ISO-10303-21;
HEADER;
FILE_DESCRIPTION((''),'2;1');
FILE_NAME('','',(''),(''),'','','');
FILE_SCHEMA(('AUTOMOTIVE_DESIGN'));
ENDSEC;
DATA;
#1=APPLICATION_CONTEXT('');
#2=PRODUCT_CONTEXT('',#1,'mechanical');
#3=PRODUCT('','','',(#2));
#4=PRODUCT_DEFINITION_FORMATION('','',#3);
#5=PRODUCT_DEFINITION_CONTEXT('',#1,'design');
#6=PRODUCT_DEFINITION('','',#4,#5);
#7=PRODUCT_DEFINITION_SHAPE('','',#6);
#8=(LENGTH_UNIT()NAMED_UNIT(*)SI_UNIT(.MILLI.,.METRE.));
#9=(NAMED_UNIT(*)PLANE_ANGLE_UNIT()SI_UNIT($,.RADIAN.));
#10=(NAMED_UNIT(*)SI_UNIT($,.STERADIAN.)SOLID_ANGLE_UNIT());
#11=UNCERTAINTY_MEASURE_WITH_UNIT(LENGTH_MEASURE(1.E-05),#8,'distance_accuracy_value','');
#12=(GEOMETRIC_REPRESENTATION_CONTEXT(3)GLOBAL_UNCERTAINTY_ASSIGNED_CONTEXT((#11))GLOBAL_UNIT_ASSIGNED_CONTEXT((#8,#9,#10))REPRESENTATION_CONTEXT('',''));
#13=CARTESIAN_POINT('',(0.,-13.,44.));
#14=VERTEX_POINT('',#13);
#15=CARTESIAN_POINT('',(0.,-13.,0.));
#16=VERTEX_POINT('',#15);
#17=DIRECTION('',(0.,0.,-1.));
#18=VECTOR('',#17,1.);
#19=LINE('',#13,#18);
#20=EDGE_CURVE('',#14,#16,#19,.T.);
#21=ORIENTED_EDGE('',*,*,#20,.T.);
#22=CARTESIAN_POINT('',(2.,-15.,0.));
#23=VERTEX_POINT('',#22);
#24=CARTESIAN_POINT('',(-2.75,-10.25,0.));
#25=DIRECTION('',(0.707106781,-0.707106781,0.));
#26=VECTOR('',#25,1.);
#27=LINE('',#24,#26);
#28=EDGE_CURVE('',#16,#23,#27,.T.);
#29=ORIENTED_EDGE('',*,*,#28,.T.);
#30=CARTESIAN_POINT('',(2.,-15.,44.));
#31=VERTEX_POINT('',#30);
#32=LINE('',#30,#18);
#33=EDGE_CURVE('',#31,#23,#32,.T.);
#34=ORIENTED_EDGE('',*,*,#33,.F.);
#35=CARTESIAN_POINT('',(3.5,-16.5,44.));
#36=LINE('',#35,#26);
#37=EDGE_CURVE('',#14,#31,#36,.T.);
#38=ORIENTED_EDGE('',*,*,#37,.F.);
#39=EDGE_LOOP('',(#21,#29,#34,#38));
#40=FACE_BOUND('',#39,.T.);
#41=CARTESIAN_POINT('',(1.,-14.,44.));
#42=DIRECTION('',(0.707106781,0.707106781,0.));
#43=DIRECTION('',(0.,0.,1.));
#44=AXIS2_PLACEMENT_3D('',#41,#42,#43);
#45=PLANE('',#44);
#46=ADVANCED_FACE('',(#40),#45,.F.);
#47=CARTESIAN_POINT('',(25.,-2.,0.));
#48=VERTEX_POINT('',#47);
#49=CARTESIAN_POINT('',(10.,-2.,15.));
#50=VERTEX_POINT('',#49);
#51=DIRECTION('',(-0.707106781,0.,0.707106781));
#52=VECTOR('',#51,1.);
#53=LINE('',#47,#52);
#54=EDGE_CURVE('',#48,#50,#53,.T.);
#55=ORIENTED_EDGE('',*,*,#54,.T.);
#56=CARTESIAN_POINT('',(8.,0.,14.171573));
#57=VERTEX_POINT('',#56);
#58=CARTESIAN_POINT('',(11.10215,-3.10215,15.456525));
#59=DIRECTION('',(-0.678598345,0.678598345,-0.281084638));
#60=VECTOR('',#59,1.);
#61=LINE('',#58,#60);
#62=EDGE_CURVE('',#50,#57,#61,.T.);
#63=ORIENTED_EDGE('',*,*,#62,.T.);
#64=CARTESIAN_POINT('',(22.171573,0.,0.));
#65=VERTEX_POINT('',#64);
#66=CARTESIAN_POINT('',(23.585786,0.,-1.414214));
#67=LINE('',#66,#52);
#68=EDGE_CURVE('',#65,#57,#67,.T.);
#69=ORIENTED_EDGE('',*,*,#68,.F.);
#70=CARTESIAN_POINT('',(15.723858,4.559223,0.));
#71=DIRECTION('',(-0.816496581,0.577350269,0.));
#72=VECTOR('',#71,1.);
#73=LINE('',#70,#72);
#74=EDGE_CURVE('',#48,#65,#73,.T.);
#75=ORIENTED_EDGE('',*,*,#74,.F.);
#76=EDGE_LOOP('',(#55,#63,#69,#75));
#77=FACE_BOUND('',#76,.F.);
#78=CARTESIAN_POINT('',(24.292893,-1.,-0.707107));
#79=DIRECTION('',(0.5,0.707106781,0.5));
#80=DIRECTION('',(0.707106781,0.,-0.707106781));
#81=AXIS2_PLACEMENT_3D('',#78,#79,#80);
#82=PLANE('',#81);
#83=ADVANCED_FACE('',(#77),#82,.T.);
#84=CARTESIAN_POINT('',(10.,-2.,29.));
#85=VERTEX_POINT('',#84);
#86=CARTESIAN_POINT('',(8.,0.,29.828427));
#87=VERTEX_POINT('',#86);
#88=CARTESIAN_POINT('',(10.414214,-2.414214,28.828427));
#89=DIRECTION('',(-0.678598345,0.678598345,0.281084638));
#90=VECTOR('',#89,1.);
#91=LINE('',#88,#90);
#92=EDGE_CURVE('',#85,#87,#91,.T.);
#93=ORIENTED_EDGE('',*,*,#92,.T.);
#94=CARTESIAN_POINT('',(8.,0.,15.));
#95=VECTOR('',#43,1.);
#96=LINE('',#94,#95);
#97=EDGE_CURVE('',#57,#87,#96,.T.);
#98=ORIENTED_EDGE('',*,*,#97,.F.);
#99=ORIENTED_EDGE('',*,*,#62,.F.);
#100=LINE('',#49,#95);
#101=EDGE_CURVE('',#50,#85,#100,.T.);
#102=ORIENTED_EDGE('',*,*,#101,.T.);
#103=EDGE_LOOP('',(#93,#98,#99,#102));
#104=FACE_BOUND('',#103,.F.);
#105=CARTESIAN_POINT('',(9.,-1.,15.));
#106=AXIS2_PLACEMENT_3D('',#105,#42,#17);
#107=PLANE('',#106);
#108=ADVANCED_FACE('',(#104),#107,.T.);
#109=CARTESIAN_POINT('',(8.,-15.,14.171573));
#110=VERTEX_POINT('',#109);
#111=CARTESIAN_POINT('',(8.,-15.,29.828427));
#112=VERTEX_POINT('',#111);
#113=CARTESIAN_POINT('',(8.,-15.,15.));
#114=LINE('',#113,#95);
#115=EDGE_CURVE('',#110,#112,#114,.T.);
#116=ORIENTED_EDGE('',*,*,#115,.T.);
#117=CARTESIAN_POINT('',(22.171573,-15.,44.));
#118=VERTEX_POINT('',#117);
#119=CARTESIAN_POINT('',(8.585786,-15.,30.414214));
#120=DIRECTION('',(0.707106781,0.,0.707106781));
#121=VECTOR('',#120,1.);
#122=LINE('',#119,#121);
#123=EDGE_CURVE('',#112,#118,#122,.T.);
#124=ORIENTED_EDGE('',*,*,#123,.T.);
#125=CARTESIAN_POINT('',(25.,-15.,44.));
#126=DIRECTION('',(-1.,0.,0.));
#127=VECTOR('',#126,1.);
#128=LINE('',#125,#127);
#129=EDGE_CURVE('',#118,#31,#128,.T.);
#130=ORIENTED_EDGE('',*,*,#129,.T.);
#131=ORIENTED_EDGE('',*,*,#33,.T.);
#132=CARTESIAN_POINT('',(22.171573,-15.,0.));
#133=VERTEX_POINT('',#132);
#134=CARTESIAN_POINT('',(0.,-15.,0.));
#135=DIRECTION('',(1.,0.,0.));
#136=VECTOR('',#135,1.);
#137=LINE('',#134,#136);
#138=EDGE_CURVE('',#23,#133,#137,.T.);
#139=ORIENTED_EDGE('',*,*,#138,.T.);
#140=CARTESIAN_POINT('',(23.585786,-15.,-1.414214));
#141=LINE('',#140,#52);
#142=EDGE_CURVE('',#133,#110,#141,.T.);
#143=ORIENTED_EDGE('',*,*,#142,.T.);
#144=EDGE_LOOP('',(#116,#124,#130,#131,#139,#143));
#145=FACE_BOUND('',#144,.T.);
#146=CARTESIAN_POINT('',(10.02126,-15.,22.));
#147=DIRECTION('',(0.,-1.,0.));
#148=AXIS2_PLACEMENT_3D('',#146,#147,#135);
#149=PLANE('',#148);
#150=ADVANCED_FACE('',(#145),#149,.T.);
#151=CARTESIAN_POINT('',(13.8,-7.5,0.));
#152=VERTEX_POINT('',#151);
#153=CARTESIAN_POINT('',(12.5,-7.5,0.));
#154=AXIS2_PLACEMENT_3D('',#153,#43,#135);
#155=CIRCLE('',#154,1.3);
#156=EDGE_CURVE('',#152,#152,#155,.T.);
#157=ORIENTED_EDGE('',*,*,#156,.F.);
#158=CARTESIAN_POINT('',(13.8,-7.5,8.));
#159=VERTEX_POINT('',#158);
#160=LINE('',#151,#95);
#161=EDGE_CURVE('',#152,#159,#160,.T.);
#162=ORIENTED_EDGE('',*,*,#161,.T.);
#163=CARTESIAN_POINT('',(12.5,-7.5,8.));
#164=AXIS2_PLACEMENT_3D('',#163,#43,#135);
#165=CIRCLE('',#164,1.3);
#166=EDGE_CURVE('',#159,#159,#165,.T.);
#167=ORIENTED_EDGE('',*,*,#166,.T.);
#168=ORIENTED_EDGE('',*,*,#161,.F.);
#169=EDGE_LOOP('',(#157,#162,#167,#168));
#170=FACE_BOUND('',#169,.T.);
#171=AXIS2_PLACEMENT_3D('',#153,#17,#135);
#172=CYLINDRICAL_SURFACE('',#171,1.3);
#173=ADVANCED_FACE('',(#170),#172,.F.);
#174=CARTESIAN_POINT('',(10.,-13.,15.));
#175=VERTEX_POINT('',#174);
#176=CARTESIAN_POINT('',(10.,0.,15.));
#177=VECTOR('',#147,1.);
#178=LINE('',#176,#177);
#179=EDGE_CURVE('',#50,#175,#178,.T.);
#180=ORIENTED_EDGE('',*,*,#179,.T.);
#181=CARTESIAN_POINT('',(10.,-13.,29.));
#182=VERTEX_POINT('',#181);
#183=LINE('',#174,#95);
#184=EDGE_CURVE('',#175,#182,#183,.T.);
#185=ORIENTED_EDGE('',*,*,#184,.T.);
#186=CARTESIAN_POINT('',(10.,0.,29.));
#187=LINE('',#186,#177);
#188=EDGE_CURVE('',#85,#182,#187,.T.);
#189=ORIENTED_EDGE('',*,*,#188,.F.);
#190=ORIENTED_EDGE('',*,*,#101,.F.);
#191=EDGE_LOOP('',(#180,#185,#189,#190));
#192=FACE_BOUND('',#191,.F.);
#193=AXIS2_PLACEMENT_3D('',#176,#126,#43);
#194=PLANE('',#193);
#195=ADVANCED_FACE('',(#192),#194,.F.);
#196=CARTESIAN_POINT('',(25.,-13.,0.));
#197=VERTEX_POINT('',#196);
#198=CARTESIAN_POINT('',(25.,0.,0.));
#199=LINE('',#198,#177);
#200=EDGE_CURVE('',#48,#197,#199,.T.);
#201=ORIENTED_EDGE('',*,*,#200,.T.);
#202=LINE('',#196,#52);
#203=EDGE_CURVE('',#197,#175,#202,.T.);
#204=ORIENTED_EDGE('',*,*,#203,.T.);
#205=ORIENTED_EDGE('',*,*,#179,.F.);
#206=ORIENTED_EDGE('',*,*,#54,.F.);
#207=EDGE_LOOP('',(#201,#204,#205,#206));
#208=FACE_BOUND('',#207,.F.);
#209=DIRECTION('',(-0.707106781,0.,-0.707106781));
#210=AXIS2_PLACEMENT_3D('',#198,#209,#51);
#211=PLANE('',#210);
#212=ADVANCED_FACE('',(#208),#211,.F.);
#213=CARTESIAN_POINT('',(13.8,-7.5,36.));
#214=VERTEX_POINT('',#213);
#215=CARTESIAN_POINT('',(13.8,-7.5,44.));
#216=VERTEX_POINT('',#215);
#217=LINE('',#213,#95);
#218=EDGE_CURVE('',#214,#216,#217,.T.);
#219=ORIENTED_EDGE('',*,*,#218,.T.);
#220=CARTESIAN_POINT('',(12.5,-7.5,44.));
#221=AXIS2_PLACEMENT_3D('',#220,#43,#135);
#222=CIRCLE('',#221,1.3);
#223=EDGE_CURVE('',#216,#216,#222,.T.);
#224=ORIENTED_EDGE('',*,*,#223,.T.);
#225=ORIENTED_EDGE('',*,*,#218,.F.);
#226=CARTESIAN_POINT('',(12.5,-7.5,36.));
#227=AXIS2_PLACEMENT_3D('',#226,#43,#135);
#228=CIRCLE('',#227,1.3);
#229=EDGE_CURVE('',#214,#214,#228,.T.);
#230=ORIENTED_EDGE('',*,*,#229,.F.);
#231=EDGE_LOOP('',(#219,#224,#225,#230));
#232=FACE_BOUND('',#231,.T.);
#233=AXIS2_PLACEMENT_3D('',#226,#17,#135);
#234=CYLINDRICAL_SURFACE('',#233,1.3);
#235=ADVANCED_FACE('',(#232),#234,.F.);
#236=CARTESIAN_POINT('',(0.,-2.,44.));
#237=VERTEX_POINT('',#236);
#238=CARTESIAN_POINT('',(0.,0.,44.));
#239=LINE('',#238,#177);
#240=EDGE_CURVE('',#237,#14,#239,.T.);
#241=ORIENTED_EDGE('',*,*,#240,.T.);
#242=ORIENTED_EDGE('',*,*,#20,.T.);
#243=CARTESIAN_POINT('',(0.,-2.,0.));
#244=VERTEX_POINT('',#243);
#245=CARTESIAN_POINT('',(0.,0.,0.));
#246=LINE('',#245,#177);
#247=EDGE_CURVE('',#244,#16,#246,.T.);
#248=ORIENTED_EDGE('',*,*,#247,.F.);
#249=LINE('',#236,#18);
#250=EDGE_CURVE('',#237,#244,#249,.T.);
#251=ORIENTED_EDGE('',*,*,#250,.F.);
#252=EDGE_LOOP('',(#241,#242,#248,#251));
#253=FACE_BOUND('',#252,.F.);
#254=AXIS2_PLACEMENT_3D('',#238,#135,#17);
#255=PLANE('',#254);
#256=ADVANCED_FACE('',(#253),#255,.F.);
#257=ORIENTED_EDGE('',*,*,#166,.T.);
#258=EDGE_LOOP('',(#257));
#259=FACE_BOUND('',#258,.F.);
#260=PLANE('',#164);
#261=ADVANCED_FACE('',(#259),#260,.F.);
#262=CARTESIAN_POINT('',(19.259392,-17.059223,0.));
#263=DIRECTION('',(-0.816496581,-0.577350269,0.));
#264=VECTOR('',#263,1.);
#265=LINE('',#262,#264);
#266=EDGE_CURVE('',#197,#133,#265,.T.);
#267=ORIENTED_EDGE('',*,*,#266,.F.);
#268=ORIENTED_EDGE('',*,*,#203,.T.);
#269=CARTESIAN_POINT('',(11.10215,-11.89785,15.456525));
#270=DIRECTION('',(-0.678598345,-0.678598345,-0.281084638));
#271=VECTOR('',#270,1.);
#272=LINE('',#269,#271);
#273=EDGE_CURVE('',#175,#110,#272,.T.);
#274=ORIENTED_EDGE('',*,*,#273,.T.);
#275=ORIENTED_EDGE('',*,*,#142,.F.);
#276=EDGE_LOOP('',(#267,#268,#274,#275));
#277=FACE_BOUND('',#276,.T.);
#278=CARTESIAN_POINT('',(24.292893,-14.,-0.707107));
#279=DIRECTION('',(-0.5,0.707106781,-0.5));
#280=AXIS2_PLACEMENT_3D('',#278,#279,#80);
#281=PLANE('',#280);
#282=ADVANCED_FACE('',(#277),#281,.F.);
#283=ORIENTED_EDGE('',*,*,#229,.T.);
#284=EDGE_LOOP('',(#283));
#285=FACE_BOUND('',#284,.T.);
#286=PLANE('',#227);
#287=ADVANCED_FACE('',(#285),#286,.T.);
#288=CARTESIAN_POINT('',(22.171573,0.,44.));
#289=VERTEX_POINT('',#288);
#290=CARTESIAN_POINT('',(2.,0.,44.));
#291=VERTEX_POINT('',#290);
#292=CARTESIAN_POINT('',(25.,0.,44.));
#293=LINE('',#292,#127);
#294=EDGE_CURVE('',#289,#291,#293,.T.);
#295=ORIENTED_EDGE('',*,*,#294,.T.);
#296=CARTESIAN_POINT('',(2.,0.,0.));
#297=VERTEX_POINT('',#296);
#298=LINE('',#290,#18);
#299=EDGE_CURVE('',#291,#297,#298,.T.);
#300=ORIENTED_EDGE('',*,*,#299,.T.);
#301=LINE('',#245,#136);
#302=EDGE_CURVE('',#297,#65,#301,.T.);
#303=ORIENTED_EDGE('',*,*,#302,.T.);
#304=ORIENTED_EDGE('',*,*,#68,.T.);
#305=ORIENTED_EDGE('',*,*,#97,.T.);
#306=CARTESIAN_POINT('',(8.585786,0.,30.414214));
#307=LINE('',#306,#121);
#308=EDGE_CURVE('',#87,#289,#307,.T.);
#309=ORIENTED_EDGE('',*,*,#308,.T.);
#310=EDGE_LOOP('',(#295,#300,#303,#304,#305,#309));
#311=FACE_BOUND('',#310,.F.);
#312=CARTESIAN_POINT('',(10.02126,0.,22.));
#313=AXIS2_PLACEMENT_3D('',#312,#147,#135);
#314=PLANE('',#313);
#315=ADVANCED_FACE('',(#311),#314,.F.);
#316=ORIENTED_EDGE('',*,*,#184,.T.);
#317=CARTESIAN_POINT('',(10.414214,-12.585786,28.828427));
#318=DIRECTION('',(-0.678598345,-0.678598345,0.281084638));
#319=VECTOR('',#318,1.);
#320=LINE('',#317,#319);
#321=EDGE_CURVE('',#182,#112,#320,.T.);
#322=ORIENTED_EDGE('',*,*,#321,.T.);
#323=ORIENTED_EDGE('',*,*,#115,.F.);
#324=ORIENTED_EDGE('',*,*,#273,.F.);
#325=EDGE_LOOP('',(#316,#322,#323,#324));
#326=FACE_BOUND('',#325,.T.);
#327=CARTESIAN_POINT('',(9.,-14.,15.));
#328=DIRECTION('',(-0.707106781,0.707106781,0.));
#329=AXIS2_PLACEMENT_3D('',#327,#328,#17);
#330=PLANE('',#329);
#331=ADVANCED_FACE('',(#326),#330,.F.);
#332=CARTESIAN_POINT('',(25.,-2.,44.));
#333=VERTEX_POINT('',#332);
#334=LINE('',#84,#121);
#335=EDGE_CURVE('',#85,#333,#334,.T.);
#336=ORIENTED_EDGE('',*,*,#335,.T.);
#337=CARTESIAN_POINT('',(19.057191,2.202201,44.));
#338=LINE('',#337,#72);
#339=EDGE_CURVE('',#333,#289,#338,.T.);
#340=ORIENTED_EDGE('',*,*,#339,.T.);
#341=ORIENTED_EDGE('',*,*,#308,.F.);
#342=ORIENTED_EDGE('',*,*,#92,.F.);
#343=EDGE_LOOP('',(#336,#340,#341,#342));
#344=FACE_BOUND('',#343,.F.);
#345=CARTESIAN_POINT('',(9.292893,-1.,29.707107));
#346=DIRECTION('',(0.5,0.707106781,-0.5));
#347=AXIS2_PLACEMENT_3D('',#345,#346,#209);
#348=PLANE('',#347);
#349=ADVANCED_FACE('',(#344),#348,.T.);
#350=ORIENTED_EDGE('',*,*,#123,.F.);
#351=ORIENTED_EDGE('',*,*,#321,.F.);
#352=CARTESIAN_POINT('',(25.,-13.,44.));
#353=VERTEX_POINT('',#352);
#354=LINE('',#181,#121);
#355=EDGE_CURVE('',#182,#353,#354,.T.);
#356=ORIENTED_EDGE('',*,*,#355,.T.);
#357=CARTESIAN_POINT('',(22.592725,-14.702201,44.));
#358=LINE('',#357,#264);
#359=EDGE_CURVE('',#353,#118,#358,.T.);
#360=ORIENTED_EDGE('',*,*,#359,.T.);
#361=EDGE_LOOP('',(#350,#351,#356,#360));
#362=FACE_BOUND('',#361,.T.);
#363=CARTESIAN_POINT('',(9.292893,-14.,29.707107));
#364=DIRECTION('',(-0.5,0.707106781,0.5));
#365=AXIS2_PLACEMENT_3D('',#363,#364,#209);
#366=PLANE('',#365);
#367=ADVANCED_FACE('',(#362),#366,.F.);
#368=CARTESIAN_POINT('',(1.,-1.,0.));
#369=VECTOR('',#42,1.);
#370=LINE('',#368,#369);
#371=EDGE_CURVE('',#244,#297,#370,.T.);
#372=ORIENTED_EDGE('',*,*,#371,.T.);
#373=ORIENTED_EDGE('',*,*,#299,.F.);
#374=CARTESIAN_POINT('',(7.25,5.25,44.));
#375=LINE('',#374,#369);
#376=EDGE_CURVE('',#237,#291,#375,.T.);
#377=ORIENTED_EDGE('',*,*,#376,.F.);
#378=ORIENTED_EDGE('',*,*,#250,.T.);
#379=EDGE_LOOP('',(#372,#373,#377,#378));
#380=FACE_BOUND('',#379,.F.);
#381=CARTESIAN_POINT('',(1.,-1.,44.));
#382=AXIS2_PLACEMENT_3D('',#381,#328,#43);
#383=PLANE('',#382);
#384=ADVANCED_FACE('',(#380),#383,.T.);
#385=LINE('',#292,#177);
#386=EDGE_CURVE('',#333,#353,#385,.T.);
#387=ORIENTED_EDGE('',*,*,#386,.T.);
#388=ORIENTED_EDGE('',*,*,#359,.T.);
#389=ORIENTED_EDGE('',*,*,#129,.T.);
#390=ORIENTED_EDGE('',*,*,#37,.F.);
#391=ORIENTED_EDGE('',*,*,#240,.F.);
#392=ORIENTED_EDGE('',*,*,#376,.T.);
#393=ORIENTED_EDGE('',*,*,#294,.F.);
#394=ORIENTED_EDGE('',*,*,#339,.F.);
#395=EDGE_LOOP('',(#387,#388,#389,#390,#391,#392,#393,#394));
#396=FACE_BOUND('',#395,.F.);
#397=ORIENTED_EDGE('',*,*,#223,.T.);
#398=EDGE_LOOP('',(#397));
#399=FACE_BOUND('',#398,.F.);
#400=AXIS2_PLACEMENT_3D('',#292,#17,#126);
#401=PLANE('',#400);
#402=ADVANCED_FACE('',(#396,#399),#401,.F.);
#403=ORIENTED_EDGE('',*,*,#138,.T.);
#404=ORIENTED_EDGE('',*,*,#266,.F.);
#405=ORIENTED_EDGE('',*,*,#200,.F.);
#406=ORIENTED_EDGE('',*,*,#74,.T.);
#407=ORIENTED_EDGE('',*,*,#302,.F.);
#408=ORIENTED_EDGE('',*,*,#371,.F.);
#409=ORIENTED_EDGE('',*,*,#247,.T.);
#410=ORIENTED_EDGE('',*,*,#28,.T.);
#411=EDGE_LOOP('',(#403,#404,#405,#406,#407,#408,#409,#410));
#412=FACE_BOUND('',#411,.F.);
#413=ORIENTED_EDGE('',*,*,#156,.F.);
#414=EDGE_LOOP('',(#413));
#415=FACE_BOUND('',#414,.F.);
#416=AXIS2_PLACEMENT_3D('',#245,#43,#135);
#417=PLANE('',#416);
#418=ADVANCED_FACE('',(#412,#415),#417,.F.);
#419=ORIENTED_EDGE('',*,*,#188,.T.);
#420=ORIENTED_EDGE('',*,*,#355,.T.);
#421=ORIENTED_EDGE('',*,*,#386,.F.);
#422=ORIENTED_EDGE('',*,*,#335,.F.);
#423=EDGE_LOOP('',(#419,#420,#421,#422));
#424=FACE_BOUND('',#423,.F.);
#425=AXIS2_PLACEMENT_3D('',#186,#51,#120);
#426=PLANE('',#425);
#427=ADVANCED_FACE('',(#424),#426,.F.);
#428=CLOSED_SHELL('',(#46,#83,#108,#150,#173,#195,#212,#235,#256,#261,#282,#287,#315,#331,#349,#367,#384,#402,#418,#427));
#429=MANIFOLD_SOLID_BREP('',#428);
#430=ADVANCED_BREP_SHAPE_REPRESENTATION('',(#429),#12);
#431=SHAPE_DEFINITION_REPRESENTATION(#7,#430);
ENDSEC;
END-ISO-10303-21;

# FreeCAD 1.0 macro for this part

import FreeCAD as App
import Part
import Sketcher

V = App.Vector


def edges_at(feature, points):
    """Names of the edges that pass closest to the given points."""
    edges = feature.Shape.Edges
    near = lambda p: min(range(len(edges)), key=lambda i: edges[i].distToShape(Part.Vertex(*p))[0])
    return sorted({f"Edge{near(p) + 1}" for p in points})

doc = App.newDocument("Part")
body = doc.addObject("PartDesign::Body", "Body")

# Sketch on XY plane
sketch1 = body.newObject("Sketcher::SketchObject", "Sketch")
sketch1.AttachmentSupport = (doc.getObject("XY_Plane"), [""])
sketch1.MapMode = "FlatFace"
sketch1.addGeometry(Part.Circle(V(12.5, -7.5, 0), V(0, 0, 1), 1.3), False)
sketch1.addConstraint([
    Sketcher.Constraint("Diameter", 0, 2.6),
    Sketcher.Constraint("DistanceX", -1, 1, 0, 3, 12.5),
    Sketcher.Constraint("DistanceY", 0, 3, -1, 1, 7.5),
])
pad1 = body.newObject("PartDesign::Pad", "Pad")
pad1.Profile = sketch1
pad1.Length = 8
body2 = doc.addObject("PartDesign::Body", "Body001")
body2.AllowCompound = True

# Sketch on XY plane
sketch2 = body2.newObject("Sketcher::SketchObject", "Sketch001")
sketch2.AttachmentSupport = (doc.getObject("XY_Plane001"), [""])
sketch2.MapMode = "FlatFace"
sketch2.AttachmentOffset = App.Placement(V(0, 0, 36), App.Rotation())
sketch2.addGeometry(Part.Circle(V(12.5, -7.5, 0), V(0, 0, 1), 1.3), False)
sketch2.addConstraint([
    Sketcher.Constraint("Diameter", 0, 2.6),
    Sketcher.Constraint("DistanceX", -1, 1, 0, 3, 12.5),
    Sketcher.Constraint("DistanceY", 0, 3, -1, 1, 7.5),
])
pad2 = body2.newObject("PartDesign::Pad", "Pad001")
pad2.Profile = sketch2
pad2.Length = 8
doc.recompute()

boolean = body2.newObject("PartDesign::Boolean", "Boolean")
boolean.Type = "Fuse"
boolean.addObjects([body])
body3 = doc.addObject("PartDesign::Body", "Body002")

# Sketch on XZ plane
sketch3 = body3.newObject("Sketcher::SketchObject", "Sketch002")
sketch3.AttachmentSupport = (doc.getObject("XZ_Plane002"), [""])
sketch3.MapMode = "FlatFace"
sketch3.addGeometry([
    Part.LineSegment(V(0, 0, 0), V(25, 0, 0)),  # 0
    Part.LineSegment(V(25, 0, 0), V(10, 15, 0)),  # 1
    Part.LineSegment(V(10, 15, 0), V(10, 29, 0)),  # 2
    Part.LineSegment(V(10, 29, 0), V(25, 44, 0)),  # 3
    Part.LineSegment(V(25, 44, 0), V(0, 44, 0)),  # 4
    Part.LineSegment(V(0, 44, 0), V(0, 0, 0)),  # 5
], False)
sketch3.addConstraint([
    Sketcher.Constraint("Coincident", 0, 2, 1, 1),
    Sketcher.Constraint("Coincident", 1, 2, 2, 1),
    Sketcher.Constraint("Coincident", 2, 2, 3, 1),
    Sketcher.Constraint("Coincident", 3, 2, 4, 1),
    Sketcher.Constraint("Coincident", 4, 2, 5, 1),
    Sketcher.Constraint("Coincident", 5, 2, 0, 1),
    Sketcher.Constraint("Horizontal", 0),
    Sketcher.Constraint("Vertical", 2),
    Sketcher.Constraint("Horizontal", 4),
    Sketcher.Constraint("Vertical", 5),
    Sketcher.Constraint("Coincident", 5, 2, -1, 1),
    Sketcher.Constraint("Perpendicular", 1, 3),
    Sketcher.Constraint("Vertical", 0, 2, 3, 2),
    Sketcher.Constraint("Equal", 1, 3),
    Sketcher.Constraint("DistanceX", 0, 1, 0, 2, 25.0),
    Sketcher.Constraint("DistanceY", 2, 1, 2, 2, 14.0),
    Sketcher.Constraint("DistanceY", 5, 2, 5, 1, 44.0),
])
pad3 = body3.newObject("PartDesign::Pad", "Pad002")
pad3.Profile = sketch3
pad3.Length = 15
doc.recompute()

chamfer = body3.newObject("PartDesign::Chamfer", "Chamfer")
chamfer.Base = (pad3, edges_at(pad3, [
    (0, 0, 22),
    (0, -15, 22),
    (17.5, 0, 7.5),
    (17.5, -15, 7.5),
    (10, 0, 22),
    (10, -15, 22),
    (17.5, 0, 36.5),
    (17.5, -15, 36.5),
]))
chamfer.Size = 2
doc.recompute()

boolean2 = body3.newObject("PartDesign::Boolean", "Boolean001")
boolean2.Type = "Cut"
boolean2.addObjects([body2])

doc.recompute()
